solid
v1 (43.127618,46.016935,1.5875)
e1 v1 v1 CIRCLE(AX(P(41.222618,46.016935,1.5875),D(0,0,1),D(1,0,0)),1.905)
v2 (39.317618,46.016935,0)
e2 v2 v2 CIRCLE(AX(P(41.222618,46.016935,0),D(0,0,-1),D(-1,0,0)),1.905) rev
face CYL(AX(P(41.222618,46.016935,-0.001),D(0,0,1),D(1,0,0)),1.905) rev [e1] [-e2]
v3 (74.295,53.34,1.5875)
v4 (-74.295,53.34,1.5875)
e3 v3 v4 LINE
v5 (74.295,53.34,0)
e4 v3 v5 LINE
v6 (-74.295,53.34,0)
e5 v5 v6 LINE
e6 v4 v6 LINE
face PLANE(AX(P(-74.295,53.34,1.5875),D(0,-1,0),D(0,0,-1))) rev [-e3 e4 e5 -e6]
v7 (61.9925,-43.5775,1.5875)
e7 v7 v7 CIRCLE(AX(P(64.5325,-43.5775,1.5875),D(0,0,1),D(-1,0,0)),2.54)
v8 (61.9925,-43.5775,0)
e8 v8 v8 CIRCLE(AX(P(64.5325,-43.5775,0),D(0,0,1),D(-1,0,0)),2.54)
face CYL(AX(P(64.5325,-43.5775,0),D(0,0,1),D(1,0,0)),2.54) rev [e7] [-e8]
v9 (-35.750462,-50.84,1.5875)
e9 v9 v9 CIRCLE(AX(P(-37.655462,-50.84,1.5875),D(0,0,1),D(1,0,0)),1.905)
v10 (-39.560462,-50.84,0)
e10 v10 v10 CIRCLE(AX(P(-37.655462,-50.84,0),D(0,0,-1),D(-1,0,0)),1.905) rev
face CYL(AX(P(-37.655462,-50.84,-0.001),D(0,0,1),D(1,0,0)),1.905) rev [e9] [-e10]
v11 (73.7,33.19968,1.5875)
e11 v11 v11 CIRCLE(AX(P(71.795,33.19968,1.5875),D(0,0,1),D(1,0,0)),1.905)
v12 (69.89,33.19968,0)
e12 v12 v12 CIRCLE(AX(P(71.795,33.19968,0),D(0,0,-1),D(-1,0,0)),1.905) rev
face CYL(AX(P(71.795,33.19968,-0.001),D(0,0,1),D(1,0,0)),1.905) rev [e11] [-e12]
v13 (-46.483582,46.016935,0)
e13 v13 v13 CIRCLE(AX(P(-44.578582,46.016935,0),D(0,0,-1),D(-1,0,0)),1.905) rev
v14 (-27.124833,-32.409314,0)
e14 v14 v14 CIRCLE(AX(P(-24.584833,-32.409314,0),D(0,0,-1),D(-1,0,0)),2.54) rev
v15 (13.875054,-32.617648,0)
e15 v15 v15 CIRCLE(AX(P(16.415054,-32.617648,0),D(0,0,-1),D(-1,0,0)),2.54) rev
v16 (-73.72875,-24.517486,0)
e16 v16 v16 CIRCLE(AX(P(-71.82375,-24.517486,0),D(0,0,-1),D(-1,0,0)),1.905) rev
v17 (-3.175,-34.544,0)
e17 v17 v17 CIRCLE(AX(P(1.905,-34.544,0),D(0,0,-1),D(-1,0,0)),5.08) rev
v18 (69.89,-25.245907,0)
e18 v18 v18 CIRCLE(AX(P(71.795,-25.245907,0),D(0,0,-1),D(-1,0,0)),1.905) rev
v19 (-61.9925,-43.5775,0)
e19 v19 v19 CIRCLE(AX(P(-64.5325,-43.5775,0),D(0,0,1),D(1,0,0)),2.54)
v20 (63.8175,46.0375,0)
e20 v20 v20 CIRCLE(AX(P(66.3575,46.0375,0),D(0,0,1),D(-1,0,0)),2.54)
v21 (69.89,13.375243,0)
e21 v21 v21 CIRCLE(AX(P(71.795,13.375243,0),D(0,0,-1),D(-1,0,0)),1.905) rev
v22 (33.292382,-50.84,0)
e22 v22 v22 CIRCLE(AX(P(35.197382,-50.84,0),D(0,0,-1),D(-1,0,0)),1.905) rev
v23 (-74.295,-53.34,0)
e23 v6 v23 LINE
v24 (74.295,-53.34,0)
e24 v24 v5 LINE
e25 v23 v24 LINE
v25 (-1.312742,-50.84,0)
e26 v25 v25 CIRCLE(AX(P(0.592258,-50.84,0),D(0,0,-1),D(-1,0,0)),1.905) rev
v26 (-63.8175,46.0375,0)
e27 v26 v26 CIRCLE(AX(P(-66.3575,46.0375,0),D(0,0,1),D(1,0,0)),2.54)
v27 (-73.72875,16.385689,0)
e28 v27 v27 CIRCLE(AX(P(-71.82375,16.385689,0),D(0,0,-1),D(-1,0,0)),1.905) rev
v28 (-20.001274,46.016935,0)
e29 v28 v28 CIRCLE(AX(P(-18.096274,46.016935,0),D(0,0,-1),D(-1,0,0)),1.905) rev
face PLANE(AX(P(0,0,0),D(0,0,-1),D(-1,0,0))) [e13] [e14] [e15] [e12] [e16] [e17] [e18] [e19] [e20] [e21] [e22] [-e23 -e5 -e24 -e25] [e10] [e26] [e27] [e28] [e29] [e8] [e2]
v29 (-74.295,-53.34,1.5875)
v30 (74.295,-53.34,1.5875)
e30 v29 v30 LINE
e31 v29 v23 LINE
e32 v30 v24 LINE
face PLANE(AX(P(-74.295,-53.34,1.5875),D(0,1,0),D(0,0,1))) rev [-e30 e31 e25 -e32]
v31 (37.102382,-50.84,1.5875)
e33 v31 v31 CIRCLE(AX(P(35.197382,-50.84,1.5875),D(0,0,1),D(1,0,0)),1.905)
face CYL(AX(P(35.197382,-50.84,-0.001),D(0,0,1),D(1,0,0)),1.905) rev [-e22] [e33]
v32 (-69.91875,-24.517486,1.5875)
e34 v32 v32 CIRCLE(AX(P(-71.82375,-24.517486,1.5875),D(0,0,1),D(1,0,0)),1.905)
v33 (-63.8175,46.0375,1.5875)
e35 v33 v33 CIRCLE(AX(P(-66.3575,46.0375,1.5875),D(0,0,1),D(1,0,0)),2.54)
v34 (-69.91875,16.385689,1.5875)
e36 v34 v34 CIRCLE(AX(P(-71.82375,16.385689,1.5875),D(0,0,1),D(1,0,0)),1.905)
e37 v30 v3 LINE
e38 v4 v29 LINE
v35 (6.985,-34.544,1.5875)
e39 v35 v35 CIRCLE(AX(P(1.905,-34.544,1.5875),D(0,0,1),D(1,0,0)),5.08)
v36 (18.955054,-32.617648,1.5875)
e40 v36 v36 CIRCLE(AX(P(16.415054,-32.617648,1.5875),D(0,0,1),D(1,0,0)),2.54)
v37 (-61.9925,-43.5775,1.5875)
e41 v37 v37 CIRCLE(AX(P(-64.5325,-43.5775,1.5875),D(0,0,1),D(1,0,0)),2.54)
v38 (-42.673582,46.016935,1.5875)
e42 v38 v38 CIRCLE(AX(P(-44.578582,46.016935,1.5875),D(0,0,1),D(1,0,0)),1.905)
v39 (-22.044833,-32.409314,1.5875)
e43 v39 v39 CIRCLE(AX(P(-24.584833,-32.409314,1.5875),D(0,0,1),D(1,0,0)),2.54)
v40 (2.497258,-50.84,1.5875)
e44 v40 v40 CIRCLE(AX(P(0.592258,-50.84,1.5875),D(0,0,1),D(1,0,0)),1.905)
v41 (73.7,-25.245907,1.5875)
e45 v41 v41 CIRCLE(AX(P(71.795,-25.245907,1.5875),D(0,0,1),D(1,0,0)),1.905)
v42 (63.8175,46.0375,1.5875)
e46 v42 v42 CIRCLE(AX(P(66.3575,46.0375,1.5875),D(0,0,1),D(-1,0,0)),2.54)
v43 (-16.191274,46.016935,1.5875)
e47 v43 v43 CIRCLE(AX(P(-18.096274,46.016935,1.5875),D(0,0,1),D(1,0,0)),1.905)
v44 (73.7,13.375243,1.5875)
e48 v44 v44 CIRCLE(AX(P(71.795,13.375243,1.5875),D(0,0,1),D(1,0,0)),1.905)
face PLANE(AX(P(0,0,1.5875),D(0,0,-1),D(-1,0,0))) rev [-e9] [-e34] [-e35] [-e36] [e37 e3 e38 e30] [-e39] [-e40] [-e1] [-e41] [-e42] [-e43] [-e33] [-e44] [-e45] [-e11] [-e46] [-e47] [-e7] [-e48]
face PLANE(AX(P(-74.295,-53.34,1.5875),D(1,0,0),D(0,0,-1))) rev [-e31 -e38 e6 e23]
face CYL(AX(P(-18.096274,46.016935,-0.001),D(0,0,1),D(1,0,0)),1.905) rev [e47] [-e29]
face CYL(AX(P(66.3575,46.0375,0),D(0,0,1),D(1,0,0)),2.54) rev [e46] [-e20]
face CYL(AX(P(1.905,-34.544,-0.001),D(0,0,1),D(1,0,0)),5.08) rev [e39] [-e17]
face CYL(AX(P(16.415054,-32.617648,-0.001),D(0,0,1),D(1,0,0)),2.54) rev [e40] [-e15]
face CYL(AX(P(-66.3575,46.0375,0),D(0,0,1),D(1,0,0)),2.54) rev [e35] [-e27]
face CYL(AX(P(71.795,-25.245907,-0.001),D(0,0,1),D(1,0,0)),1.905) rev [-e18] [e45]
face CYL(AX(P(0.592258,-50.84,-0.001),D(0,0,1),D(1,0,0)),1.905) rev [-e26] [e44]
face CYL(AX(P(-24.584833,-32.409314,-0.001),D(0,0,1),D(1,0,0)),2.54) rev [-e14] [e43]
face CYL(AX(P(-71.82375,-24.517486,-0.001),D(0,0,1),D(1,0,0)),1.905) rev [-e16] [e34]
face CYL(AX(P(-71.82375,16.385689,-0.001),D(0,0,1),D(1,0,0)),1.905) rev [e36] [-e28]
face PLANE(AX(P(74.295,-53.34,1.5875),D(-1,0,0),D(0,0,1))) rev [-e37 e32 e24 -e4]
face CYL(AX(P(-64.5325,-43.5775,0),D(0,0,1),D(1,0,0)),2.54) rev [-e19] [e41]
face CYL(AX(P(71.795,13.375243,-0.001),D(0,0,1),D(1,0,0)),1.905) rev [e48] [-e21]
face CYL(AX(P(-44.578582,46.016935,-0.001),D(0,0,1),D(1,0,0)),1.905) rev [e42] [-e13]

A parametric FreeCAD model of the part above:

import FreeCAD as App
import Part
import Sketcher
from FreeCAD import Vector
Q = App.Units.Quantity


def add_polygon(sketch, points):
    """Adds a closed chain of lines whose ends are joined by coincident constraints."""
    first, n = sketch.GeometryCount, len(points)
    for a, b in zip(points, points[1:] + points[:1]):
        sketch.addGeometry(Part.LineSegment(App.Vector(*a, 0), App.Vector(*b, 0)), False)
    for i in range(n):
        sketch.addConstraint(Sketcher.Constraint("Coincident", first + i, 2, first + (i + 1) % n, 1))

doc = App.newDocument("Part")
body = doc.addObject("PartDesign::Body", "Body")

# Sketch on XY plane
sketch1 = body.newObject("Sketcher::SketchObject", "Sketch")
sketch1.AttachmentSupport = (doc.getObject("XY_Plane"), [""])
sketch1.MapMode = "FlatFace"
add_polygon(sketch1, [(-74.295, 53.34), (-74.295, -53.34), (74.295, -53.34), (74.295, 53.34)])  # lines 0-3
sketch1.addConstraint([
    Sketcher.Constraint("Vertical", 0),
    Sketcher.Constraint("Horizontal", 1),
    Sketcher.Constraint("Vertical", 2),
    Sketcher.Constraint("Horizontal", 3),
    Sketcher.Constraint("Symmetric", 0, 2, 2, 2, -1, 1),
    Sketcher.Constraint("DistanceY", 0, 2, 0, 1, Q("4.2 in")),
    Sketcher.Constraint("DistanceX", 1, 1, 1, 2, Q("5.85 in")),
])
pad1 = body.newObject("PartDesign::Pad", "Pad")
pad1.Profile = sketch1
pad1.Length = Q("0.0625 in")

# Sketch on XY plane
sketch2 = body.newObject("Sketcher::SketchObject", "Sketch001")
sketch2.AttachmentSupport = (doc.getObject("XY_Plane"), [""])
sketch2.MapMode = "FlatFace"
sketch2.AttachmentOffset = App.Placement(Vector(0, 0, 0.0625 * 25.4), App.Rotation())
sketch2.addGeometry([
    Part.Circle(Vector(-64.5325, -43.5775, 0), Vector(0, 0, 1), 2.54),
    Part.Circle(Vector(64.5325, -43.5775, 0), Vector(0, 0, 1), 2.54),
    Part.Circle(Vector(-66.3575, 46.0375, 0), Vector(0, 0, 1), 2.54),
    Part.Circle(Vector(66.3575, 46.0375, 0), Vector(0, 0, 1), 2.54),
], False)
sketch2.addConstraint([
    Sketcher.Constraint("Equal", 0, 1),
    Sketcher.Constraint("Equal", 1, 2),
    Sketcher.Constraint("Equal", 2, 3),
    Sketcher.Constraint("Symmetric", 0, 3, 1, 3, -2),
    Sketcher.Constraint("Symmetric", 2, 3, 3, 3, -2),
    Sketcher.Constraint("Diameter", 0, Q("0.2 in")),
    Sketcher.Constraint("DistanceY", -1, 1, 2, 3, Q("1.8125 in")),
    Sketcher.Constraint("DistanceX", 2, 3, 3, 3, Q("5.225 in")),
    Sketcher.Constraint("DistanceX", 0, 3, -1, 1, Q("64.5325 mm")),
    Sketcher.Constraint("DistanceY", 0, 3, -1, 1, Q("43.5775 mm")),
])
pocket1 = body.newObject("PartDesign::Pocket", "Pocket")
pocket1.Profile = sketch2
pocket1.Type = "ThroughAll"

# Sketch on XY plane
sketch3 = body.newObject("Sketcher::SketchObject", "Sketch002")
sketch3.AttachmentSupport = (doc.getObject("XY_Plane"), [""])
sketch3.MapMode = "FlatFace"
sketch3.AttachmentOffset = App.Placement(Vector(0, 0, 0.0625 * 25.4), App.Rotation())
sketch3.addGeometry(Part.Circle(Vector(1.905, -34.544, 0), Vector(0, 0, 1), 5.08), False)
sketch3.addConstraint([
    Sketcher.Constraint("Diameter", 0, Q("0.4 in")),
    Sketcher.Constraint("DistanceY", 0, 3, -1, 1, Q("1.36 in")),
    Sketcher.Constraint("DistanceX", -1, 1, 0, 3, Q("0.075 in")),
])
pocket2 = body.newObject("PartDesign::Pocket", "Pocket001")
pocket2.Profile = sketch3
pocket2.Type = "UpToFirst"

# Sketch on XY plane
sketch4 = body.newObject("Sketcher::SketchObject", "Sketch003")
sketch4.AttachmentSupport = (doc.getObject("XY_Plane"), [""])
sketch4.MapMode = "FlatFace"
sketch4.AttachmentOffset = App.Placement(Vector(0, 0, 0.0625 * 25.4), App.Rotation())
sketch4.addGeometry(Part.Circle(Vector(-44.578582, 46.016935, 0), Vector(0, 0, 1), 1.905), False)
sketch4.addConstraint([
    Sketcher.Constraint("Diameter", 0, Q("0.15 in")),
    Sketcher.Constraint("DistanceX", 0, 3, -1, 1, Q("44.578582 mm")),
    Sketcher.Constraint("DistanceY", -1, 1, 0, 3, Q("46.016935 mm")),
])
pocket3 = body.newObject("PartDesign::Pocket", "Pocket002")
pocket3.Profile = sketch4
pocket3.Type = "UpToFirst"

# Sketch on XY plane
sketch5 = body.newObject("Sketcher::SketchObject", "Sketch004")
sketch5.AttachmentSupport = (doc.getObject("XY_Plane"), [""])
sketch5.MapMode = "FlatFace"
sketch5.AttachmentOffset = App.Placement(Vector(0, 0, 0.0625 * 25.4), App.Rotation())
sketch5.addGeometry(Part.Circle(Vector(-18.096274, 46.016935, 0), Vector(0, 0, 1), 1.905), False)
sketch5.addConstraint([
    Sketcher.Constraint("Diameter", 0, Q("0.15 in")),
    Sketcher.Constraint("DistanceX", 0, 3, -1, 1, Q("18.096274 mm")),
    Sketcher.Constraint("DistanceY", -1, 1, 0, 3, Q("46.016935 mm")),
])
pocket4 = body.newObject("PartDesign::Pocket", "Pocket003")
pocket4.Profile = sketch5
pocket4.Type = "UpToFirst"

# Sketch on XY plane
sketch6 = body.newObject("Sketcher::SketchObject", "Sketch005")
sketch6.AttachmentSupport = (doc.getObject("XY_Plane"), [""])
sketch6.MapMode = "FlatFace"
sketch6.AttachmentOffset = App.Placement(Vector(0, 0, 0.0625 * 25.4), App.Rotation())
sketch6.addGeometry(Part.Circle(Vector(41.222618, 46.016935, 0), Vector(0, 0, 1), 1.905), False)
sketch6.addConstraint([
    Sketcher.Constraint("Diameter", 0, Q("0.15 in")),
    Sketcher.Constraint("DistanceX", -1, 1, 0, 3, Q("41.222618 mm")),
    Sketcher.Constraint("DistanceY", -1, 1, 0, 3, Q("46.016935 mm")),
])
pocket5 = body.newObject("PartDesign::Pocket", "Pocket004")
pocket5.Profile = sketch6
pocket5.Type = "UpToFirst"

# Sketch on XY plane
sketch7 = body.newObject("Sketcher::SketchObject", "Sketch006")
sketch7.AttachmentSupport = (doc.getObject("XY_Plane"), [""])
sketch7.MapMode = "FlatFace"
sketch7.AttachmentOffset = App.Placement(Vector(0, 0, 0.0625 * 25.4), App.Rotation())
sketch7.addGeometry(Part.Circle(Vector(71.795, 33.19968, 0), Vector(0, 0, 1), 1.905), False)
sketch7.addConstraint([
    Sketcher.Constraint("Diameter", 0, Q("0.15 in")),
    Sketcher.Constraint("DistanceX", -1, 1, 0, 3, Q("71.795 mm")),
    Sketcher.Constraint("DistanceY", -1, 1, 0, 3, Q("33.19968 mm")),
])
pocket6 = body.newObject("PartDesign::Pocket", "Pocket005")
pocket6.Profile = sketch7
pocket6.Type = "UpToFirst"

# Sketch on XY plane
sketch8 = body.newObject("Sketcher::SketchObject", "Sketch007")
sketch8.AttachmentSupport = (doc.getObject("XY_Plane"), [""])
sketch8.MapMode = "FlatFace"
sketch8.AttachmentOffset = App.Placement(Vector(0, 0, 0.0625 * 25.4), App.Rotation())
sketch8.addGeometry(Part.Circle(Vector(71.795, 13.375243, 0), Vector(0, 0, 1), 1.905), False)
sketch8.addConstraint([
    Sketcher.Constraint("Diameter", 0, Q("0.15 in")),
    Sketcher.Constraint("DistanceX", -1, 1, 0, 3, Q("71.795 mm")),
    Sketcher.Constraint("DistanceY", -1, 1, 0, 3, Q("13.375243 mm")),
])
pocket7 = body.newObject("PartDesign::Pocket", "Pocket006")
pocket7.Profile = sketch8
pocket7.Type = "UpToFirst"

# Sketch on XY plane
sketch9 = body.newObject("Sketcher::SketchObject", "Sketch008")
sketch9.AttachmentSupport = (doc.getObject("XY_Plane"), [""])
sketch9.MapMode = "FlatFace"
sketch9.AttachmentOffset = App.Placement(Vector(0, 0, 0.0625 * 25.4), App.Rotation())
sketch9.addGeometry(Part.Circle(Vector(71.795, -25.245907, 0), Vector(0, 0, 1), 1.905), False)
sketch9.addConstraint([
    Sketcher.Constraint("Diameter", 0, Q("0.15 in")),
    Sketcher.Constraint("DistanceX", -1, 1, 0, 3, Q("71.795 mm")),
    Sketcher.Constraint("DistanceY", 0, 3, -1, 1, Q("25.245907 mm")),
])
pocket8 = body.newObject("PartDesign::Pocket", "Pocket007")
pocket8.Profile = sketch9
pocket8.Type = "UpToFirst"

# Sketch on XY plane
sketch10 = body.newObject("Sketcher::SketchObject", "Sketch009")
sketch10.AttachmentSupport = (doc.getObject("XY_Plane"), [""])
sketch10.MapMode = "FlatFace"
sketch10.AttachmentOffset = App.Placement(Vector(0, 0, 0.0625 * 25.4), App.Rotation())
sketch10.addGeometry(Part.Circle(Vector(35.197382, -50.84, 0), Vector(0, 0, 1), 1.905), False)
sketch10.addConstraint([
    Sketcher.Constraint("Diameter", 0, Q("0.15 in")),
    Sketcher.Constraint("DistanceY", 0, 3, -1, 1, Q("50.84 mm")),
    Sketcher.Constraint("DistanceX", -1, 1, 0, 3, Q("35.197382 mm")),
])
pocket9 = body.newObject("PartDesign::Pocket", "Pocket008")
pocket9.Profile = sketch10
pocket9.Type = "UpToFirst"

# Sketch on XY plane
sketch11 = body.newObject("Sketcher::SketchObject", "Sketch010")
sketch11.AttachmentSupport = (doc.getObject("XY_Plane"), [""])
sketch11.MapMode = "FlatFace"
sketch11.AttachmentOffset = App.Placement(Vector(0, 0, 0.0625 * 25.4), App.Rotation())
sketch11.addGeometry(Part.Circle(Vector(0.592258, -50.84, 0), Vector(0, 0, 1), 1.905), False)
sketch11.addConstraint([
    Sketcher.Constraint("Diameter", 0, Q("0.15 in")),
    Sketcher.Constraint("DistanceY", 0, 3, -1, 1, Q("50.84 mm")),
    Sketcher.Constraint("DistanceX", -1, 1, 0, 3, Q("0.592258 mm")),
])
pocket10 = body.newObject("PartDesign::Pocket", "Pocket009")
pocket10.Profile = sketch11
pocket10.Type = "UpToFirst"

# Sketch on XY plane
sketch12 = body.newObject("Sketcher::SketchObject", "Sketch011")
sketch12.AttachmentSupport = (doc.getObject("XY_Plane"), [""])
sketch12.MapMode = "FlatFace"
sketch12.AttachmentOffset = App.Placement(Vector(0, 0, 0.0625 * 25.4), App.Rotation())
sketch12.addGeometry(Part.Circle(Vector(-37.655462, -50.84, 0), Vector(0, 0, 1), 1.905), False)
sketch12.addConstraint([
    Sketcher.Constraint("Diameter", 0, Q("0.15 in")),
    Sketcher.Constraint("DistanceY", 0, 3, -1, 1, Q("50.84 mm")),
    Sketcher.Constraint("DistanceX", 0, 3, -1, 1, Q("37.655462 mm")),
])
pocket11 = body.newObject("PartDesign::Pocket", "Pocket010")
pocket11.Profile = sketch12
pocket11.Type = "UpToFirst"

# Sketch on XY plane
sketch13 = body.newObject("Sketcher::SketchObject", "Sketch012")
sketch13.AttachmentSupport = (doc.getObject("XY_Plane"), [""])
sketch13.MapMode = "FlatFace"
sketch13.AttachmentOffset = App.Placement(Vector(0, 0, 0.0625 * 25.4), App.Rotation())
sketch13.addGeometry(Part.Circle(Vector(-71.82375, -24.517486, 0), Vector(0, 0, 1), 1.905), False)
sketch13.addConstraint([
    Sketcher.Constraint("Diameter", 0, Q("0.15 in")),
    Sketcher.Constraint("DistanceX", 0, 3, -1, 1, Q("71.82375 mm")),
    Sketcher.Constraint("DistanceY", 0, 3, -1, 1, Q("24.517486 mm")),
])
pocket12 = body.newObject("PartDesign::Pocket", "Pocket011")
pocket12.Profile = sketch13
pocket12.Type = "UpToFirst"

# Sketch on XY plane
sketch14 = body.newObject("Sketcher::SketchObject", "Sketch013")
sketch14.AttachmentSupport = (doc.getObject("XY_Plane"), [""])
sketch14.MapMode = "FlatFace"
sketch14.AttachmentOffset = App.Placement(Vector(0, 0, 0.0625 * 25.4), App.Rotation())
sketch14.addGeometry(Part.Circle(Vector(-71.82375, 16.385689, 0), Vector(0, 0, 1), 1.905), False)
sketch14.addConstraint([
    Sketcher.Constraint("Diameter", 0, Q("0.15 in")),
    Sketcher.Constraint("DistanceX", 0, 3, -1, 1, Q("71.82375 mm")),
    Sketcher.Constraint("DistanceY", -1, 1, 0, 3, Q("16.385689 mm")),
])
pocket13 = body.newObject("PartDesign::Pocket", "Pocket012")
pocket13.Profile = sketch14
pocket13.Type = "UpToFirst"

# Sketch on XY plane
sketch15 = body.newObject("Sketcher::SketchObject", "Sketch014")
sketch15.AttachmentSupport = (doc.getObject("XY_Plane"), [""])
sketch15.MapMode = "FlatFace"
sketch15.AttachmentOffset = App.Placement(Vector(0, 0, 0.0625 * 25.4), App.Rotation())
sketch15.addGeometry(Part.Circle(Vector(-24.584833, -32.409314, 0), Vector(0, 0, 1), 2.54), False)
sketch15.addConstraint([
    Sketcher.Constraint("Diameter", 0, Q("0.2 in")),
    Sketcher.Constraint("DistanceX", 0, 3, -1, 1, Q("24.584833 mm")),
    Sketcher.Constraint("DistanceY", 0, 3, -1, 1, Q("32.409314 mm")),
])
pocket14 = body.newObject("PartDesign::Pocket", "Pocket013")
pocket14.Profile = sketch15
pocket14.Type = "UpToFirst"

# Sketch on XY plane
sketch16 = body.newObject("Sketcher::SketchObject", "Sketch015")
sketch16.AttachmentSupport = (doc.getObject("XY_Plane"), [""])
sketch16.MapMode = "FlatFace"
sketch16.AttachmentOffset = App.Placement(Vector(0, 0, 0.0625 * 25.4), App.Rotation())
sketch16.addGeometry(Part.Circle(Vector(16.415054, -32.617648, 0), Vector(0, 0, 1), 2.54), False)
sketch16.addConstraint([
    Sketcher.Constraint("Diameter", 0, Q("0.2 in")),
    Sketcher.Constraint("DistanceX", -1, 1, 0, 3, Q("16.415054 mm")),
    Sketcher.Constraint("DistanceY", 0, 3, -1, 1, Q("32.617648 mm")),
])
pocket15 = body.newObject("PartDesign::Pocket", "Pocket014")
pocket15.Profile = sketch16
pocket15.Type = "UpToFirst"

doc.recompute()
